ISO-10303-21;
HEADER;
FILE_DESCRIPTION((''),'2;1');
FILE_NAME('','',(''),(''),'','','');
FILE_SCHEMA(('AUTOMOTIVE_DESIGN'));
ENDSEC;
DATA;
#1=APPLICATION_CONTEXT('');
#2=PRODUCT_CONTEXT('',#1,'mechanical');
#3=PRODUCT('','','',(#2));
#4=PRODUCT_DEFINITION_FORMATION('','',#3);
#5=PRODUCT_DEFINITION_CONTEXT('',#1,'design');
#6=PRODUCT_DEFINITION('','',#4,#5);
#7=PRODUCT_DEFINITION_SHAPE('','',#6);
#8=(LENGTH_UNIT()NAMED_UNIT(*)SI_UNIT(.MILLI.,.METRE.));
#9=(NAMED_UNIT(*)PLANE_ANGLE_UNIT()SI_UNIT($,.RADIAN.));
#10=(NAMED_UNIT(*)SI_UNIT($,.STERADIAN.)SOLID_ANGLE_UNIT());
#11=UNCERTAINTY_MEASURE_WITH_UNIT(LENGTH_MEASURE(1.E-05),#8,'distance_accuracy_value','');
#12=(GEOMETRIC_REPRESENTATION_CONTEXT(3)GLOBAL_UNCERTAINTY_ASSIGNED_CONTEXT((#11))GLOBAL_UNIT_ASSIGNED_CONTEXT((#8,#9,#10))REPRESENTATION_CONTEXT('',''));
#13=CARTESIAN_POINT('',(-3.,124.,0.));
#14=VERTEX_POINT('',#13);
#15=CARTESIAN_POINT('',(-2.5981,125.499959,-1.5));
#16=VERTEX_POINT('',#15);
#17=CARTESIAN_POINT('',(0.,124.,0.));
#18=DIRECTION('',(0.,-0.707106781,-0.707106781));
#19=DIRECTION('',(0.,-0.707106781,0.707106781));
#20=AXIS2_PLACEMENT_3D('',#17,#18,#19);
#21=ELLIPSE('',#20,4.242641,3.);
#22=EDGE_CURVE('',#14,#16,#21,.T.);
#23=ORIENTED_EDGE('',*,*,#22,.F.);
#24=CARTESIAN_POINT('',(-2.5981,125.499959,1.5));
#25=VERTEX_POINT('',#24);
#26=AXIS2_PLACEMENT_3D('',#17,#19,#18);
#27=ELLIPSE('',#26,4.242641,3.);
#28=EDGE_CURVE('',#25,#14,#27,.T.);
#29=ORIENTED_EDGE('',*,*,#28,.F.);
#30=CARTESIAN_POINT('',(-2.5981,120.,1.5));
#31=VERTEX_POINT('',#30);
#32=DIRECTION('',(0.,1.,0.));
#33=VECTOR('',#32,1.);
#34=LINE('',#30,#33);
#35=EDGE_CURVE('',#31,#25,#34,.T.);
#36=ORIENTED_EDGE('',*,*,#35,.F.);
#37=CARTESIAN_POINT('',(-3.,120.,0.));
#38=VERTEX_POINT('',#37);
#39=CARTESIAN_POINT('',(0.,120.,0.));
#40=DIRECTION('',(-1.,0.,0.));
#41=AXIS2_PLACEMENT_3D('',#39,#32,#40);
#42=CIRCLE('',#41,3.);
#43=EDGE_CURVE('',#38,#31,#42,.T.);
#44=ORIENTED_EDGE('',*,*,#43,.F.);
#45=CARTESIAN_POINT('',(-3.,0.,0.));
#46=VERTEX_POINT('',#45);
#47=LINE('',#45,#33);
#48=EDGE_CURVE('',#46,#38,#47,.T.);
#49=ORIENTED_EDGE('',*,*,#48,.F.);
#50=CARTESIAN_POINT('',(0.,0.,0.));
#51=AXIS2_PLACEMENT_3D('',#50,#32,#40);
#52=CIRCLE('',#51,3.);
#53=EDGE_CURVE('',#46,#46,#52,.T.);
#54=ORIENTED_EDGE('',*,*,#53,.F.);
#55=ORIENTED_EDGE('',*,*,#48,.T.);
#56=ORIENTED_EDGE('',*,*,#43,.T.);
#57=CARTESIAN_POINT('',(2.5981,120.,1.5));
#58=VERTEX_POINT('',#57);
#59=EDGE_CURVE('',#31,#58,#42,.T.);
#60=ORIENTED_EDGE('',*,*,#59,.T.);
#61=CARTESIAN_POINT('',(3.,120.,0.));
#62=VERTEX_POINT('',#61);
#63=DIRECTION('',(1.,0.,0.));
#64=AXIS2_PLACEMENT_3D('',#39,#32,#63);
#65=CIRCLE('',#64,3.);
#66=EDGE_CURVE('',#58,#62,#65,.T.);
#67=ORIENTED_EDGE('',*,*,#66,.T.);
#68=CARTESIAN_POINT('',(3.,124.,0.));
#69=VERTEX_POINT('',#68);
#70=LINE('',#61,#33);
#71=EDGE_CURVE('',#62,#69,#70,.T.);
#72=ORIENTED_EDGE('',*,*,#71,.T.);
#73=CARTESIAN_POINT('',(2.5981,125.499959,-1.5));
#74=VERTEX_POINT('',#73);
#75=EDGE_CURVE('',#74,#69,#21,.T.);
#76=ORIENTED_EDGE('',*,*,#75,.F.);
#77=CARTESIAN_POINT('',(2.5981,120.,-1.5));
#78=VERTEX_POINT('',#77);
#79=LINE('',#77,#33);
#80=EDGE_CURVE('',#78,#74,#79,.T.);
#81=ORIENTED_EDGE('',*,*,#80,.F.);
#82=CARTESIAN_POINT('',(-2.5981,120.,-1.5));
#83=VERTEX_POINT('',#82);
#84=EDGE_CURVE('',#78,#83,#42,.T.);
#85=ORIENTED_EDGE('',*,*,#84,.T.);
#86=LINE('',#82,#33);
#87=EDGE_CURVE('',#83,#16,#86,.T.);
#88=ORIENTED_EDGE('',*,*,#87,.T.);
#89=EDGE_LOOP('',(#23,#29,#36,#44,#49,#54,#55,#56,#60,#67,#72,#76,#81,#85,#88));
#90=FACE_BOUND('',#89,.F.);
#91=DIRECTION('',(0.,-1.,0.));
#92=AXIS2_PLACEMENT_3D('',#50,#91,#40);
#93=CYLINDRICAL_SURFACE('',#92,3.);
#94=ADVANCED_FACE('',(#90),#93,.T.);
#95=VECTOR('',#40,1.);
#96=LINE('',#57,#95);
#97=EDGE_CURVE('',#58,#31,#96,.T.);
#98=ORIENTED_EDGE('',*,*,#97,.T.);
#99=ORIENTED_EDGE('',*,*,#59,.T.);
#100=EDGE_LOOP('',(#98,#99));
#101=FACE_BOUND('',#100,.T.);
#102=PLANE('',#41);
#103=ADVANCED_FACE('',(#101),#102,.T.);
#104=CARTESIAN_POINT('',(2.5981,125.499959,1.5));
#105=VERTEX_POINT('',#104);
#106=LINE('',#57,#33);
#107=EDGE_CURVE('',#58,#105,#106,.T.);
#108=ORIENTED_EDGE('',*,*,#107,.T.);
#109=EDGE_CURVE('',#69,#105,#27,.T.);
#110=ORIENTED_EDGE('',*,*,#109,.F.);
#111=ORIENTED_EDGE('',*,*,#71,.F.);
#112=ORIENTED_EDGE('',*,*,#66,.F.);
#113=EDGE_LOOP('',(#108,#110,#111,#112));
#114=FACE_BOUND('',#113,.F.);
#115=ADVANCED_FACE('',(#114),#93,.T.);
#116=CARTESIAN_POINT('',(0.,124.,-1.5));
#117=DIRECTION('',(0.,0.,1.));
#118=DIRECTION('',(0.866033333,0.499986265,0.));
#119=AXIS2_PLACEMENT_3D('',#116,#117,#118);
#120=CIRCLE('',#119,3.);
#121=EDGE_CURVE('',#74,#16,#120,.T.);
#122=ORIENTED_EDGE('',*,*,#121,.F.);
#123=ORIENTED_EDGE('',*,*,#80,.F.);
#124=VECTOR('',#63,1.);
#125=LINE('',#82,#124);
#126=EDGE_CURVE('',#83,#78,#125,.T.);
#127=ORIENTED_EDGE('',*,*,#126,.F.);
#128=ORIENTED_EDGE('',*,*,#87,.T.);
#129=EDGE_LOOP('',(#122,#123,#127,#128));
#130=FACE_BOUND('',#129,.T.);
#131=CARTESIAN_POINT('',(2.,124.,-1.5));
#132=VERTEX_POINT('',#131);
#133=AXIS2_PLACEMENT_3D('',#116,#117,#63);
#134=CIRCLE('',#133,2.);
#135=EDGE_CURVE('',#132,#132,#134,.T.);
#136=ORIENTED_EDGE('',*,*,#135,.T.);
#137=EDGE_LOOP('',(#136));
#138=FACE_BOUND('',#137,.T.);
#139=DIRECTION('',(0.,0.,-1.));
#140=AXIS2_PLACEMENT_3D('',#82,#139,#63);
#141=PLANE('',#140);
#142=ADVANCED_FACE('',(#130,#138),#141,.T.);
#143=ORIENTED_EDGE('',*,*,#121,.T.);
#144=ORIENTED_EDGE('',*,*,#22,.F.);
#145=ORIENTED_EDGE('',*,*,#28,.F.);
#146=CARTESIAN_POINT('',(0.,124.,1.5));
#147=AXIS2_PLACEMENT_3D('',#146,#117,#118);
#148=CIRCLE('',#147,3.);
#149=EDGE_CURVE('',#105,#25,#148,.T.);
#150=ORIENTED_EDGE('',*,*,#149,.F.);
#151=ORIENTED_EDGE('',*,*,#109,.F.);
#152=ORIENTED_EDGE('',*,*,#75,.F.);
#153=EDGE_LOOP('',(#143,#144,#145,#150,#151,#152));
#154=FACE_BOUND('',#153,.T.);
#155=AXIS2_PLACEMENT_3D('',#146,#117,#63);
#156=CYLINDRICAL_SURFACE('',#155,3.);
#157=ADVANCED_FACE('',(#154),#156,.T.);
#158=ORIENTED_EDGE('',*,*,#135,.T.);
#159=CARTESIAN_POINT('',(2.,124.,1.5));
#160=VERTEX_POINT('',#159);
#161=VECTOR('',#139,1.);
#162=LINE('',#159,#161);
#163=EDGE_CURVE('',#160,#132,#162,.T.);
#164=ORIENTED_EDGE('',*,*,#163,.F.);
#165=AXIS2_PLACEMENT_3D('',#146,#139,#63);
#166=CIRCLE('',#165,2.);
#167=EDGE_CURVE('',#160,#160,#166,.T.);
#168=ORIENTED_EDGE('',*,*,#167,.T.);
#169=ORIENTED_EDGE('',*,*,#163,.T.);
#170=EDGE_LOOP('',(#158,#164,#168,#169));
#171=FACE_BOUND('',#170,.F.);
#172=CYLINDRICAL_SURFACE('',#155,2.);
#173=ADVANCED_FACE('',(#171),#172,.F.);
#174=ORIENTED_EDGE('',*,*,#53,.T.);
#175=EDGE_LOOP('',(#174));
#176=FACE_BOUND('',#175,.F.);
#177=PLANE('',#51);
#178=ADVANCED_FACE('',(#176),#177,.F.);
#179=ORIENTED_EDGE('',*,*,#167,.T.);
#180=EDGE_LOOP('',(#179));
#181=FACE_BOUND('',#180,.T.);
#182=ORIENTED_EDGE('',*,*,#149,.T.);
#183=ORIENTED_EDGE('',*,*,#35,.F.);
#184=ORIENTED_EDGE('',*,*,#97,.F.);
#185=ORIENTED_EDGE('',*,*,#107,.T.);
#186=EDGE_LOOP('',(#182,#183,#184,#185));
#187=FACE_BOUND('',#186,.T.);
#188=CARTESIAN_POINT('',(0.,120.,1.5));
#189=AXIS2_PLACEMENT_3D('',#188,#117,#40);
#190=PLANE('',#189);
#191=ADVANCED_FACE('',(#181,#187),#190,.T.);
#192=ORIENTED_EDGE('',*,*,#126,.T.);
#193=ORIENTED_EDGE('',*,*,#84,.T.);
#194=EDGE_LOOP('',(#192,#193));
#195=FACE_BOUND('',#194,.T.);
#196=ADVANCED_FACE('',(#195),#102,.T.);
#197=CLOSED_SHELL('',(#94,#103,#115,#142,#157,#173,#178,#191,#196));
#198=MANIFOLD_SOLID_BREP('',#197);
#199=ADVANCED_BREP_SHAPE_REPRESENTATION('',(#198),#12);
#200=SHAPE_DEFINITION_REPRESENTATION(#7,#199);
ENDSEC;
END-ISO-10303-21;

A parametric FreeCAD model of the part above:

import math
import FreeCAD as App
import Part
import Sketcher

V = App.Vector

doc = App.newDocument("Part")
body = doc.addObject("PartDesign::Body", "Body")

# Sketch on XZ plane
sketch1 = body.newObject("Sketcher::SketchObject", "Sketch")
sketch1.AttachmentSupport = (doc.getObject("XZ_Plane"), [""])
sketch1.MapMode = "FlatFace"
sketch1.addGeometry(Part.Circle(V(0, 0, 0), V(0, 0, 1), 3), False)
sketch1.addConstraint([
    Sketcher.Constraint("Coincident", 0, 3, -1, 1),
    Sketcher.Constraint("Diameter", 0, 6.0),
])
pad1 = body.newObject("PartDesign::Pad", "Pad")
pad1.Profile = sketch1
pad1.Length = 120
pad1.Reversed = True

# Sketch on XZ plane
sketch2 = body.newObject("Sketcher::SketchObject", "Sketch001")
sketch2.AttachmentSupport = (doc.getObject("XZ_Plane"), [""])
sketch2.MapMode = "FlatFace"
sketch2.AttachmentOffset = App.Placement(V(0, 0, -120), App.Rotation())
sketch2.addGeometry([
    Part.ArcOfCircle(Part.Circle(V(0, 0, 0), V(0, 0, 1), 3), math.radians(-30), math.radians(30)),
    Part.LineSegment(V(2.6, -1.5, 0), V(-2.6, -1.5, 0)),
    Part.ArcOfCircle(Part.Circle(V(0, 0, 0), V(0, 0, 1), 3), math.radians(150), math.radians(210)),
    Part.LineSegment(V(-2.6, 1.5, 0), V(2.6, 1.5, 0)),
], False)
sketch2.addConstraint([
    Sketcher.Constraint("Coincident", 0, 1, 1, 1),
    Sketcher.Constraint("Coincident", 1, 2, 2, 2),
    Sketcher.Constraint("Coincident", 2, 1, 3, 1),
    Sketcher.Constraint("Coincident", 3, 2, 0, 2),
    Sketcher.Constraint("Horizontal", 1),
    Sketcher.Constraint("Horizontal", 3),
    Sketcher.Constraint("Coincident", 0, 3, -1, 1),
    Sketcher.Constraint("Coincident", 2, 3, -1, 1),
    Sketcher.Constraint("Equal", 0, 2),
    Sketcher.Constraint("Vertical", 1, 2, 2, 1),
    Sketcher.Constraint("Radius", 0, 3.0),
    Sketcher.Constraint("DistanceY", 1, 2, 2, 1, 3.0),
])
pad2 = body.newObject("PartDesign::Pad", "Pad001")
pad2.Profile = sketch2
pad2.Length = 7
pad2.Reversed = True

# Sketch on XY plane
sketch3 = body.newObject("Sketcher::SketchObject", "Sketch002")
sketch3.AttachmentSupport = (doc.getObject("XY_Plane"), [""])
sketch3.MapMode = "FlatFace"
sketch3.AttachmentOffset = App.Placement(V(0, 0, 1.5), App.Rotation())
sketch3.addGeometry([
    Part.ArcOfCircle(Part.Circle(V(0, 124, 0), V(0, 0, 1), 3), math.radians(0), math.radians(90)),  # 0
    Part.LineSegment(V(3, 124, 0), V(3, 127, 0)),  # 1
    Part.LineSegment(V(3, 127, 0), V(0, 127, 0)),  # 2
    Part.Circle(V(0, 124, 0), V(0, 0, 1), 2),  # 3
    Part.LineSegment(V(-3, 127, 0), V(-3, 124, 0)),  # 4
    Part.ArcOfCircle(Part.Circle(V(0, 124, 0), V(0, 0, 1), 3), math.radians(90), math.radians(180)),  # 5
    Part.LineSegment(V(0, 127, 0), V(-3, 127, 0)),  # 6
], False)
sketch3.addConstraint([
    Sketcher.Constraint("Tangent", 0, 1, 1, 1),
    Sketcher.Constraint("Coincident", 1, 2, 2, 1),
    Sketcher.Constraint("Tangent", 2, 2, 0, 2),
    Sketcher.Constraint("Tangent", 4, 2, 5, 2),
    Sketcher.Constraint("Tangent", 5, 1, 6, 1),
    Sketcher.Constraint("Coincident", 6, 2, 4, 1),
    Sketcher.Constraint("Vertical", 1),
    Sketcher.Constraint("Horizontal", 2),
    Sketcher.Constraint("Vertical", 4),
    Sketcher.Constraint("Horizontal", 6),
    Sketcher.Constraint("Coincident", 3, 3, 0, 3),
    Sketcher.Constraint("Coincident", 5, 3, 0, 3),
    Sketcher.Constraint("Equal", 0, 5),
    Sketcher.Constraint("PointOnObject", 0, 3, -2),
    Sketcher.Constraint("Diameter", 3, 4.0),
    Sketcher.Constraint("Radius", 0, 3.0),
    Sketcher.Constraint("DistanceY", -1, 1, 0, 3, 124.0),
])
pocket1 = body.newObject("PartDesign::Pocket", "Pocket")
pocket1.Profile = sketch3
pocket1.Length = 7

doc.recompute()
